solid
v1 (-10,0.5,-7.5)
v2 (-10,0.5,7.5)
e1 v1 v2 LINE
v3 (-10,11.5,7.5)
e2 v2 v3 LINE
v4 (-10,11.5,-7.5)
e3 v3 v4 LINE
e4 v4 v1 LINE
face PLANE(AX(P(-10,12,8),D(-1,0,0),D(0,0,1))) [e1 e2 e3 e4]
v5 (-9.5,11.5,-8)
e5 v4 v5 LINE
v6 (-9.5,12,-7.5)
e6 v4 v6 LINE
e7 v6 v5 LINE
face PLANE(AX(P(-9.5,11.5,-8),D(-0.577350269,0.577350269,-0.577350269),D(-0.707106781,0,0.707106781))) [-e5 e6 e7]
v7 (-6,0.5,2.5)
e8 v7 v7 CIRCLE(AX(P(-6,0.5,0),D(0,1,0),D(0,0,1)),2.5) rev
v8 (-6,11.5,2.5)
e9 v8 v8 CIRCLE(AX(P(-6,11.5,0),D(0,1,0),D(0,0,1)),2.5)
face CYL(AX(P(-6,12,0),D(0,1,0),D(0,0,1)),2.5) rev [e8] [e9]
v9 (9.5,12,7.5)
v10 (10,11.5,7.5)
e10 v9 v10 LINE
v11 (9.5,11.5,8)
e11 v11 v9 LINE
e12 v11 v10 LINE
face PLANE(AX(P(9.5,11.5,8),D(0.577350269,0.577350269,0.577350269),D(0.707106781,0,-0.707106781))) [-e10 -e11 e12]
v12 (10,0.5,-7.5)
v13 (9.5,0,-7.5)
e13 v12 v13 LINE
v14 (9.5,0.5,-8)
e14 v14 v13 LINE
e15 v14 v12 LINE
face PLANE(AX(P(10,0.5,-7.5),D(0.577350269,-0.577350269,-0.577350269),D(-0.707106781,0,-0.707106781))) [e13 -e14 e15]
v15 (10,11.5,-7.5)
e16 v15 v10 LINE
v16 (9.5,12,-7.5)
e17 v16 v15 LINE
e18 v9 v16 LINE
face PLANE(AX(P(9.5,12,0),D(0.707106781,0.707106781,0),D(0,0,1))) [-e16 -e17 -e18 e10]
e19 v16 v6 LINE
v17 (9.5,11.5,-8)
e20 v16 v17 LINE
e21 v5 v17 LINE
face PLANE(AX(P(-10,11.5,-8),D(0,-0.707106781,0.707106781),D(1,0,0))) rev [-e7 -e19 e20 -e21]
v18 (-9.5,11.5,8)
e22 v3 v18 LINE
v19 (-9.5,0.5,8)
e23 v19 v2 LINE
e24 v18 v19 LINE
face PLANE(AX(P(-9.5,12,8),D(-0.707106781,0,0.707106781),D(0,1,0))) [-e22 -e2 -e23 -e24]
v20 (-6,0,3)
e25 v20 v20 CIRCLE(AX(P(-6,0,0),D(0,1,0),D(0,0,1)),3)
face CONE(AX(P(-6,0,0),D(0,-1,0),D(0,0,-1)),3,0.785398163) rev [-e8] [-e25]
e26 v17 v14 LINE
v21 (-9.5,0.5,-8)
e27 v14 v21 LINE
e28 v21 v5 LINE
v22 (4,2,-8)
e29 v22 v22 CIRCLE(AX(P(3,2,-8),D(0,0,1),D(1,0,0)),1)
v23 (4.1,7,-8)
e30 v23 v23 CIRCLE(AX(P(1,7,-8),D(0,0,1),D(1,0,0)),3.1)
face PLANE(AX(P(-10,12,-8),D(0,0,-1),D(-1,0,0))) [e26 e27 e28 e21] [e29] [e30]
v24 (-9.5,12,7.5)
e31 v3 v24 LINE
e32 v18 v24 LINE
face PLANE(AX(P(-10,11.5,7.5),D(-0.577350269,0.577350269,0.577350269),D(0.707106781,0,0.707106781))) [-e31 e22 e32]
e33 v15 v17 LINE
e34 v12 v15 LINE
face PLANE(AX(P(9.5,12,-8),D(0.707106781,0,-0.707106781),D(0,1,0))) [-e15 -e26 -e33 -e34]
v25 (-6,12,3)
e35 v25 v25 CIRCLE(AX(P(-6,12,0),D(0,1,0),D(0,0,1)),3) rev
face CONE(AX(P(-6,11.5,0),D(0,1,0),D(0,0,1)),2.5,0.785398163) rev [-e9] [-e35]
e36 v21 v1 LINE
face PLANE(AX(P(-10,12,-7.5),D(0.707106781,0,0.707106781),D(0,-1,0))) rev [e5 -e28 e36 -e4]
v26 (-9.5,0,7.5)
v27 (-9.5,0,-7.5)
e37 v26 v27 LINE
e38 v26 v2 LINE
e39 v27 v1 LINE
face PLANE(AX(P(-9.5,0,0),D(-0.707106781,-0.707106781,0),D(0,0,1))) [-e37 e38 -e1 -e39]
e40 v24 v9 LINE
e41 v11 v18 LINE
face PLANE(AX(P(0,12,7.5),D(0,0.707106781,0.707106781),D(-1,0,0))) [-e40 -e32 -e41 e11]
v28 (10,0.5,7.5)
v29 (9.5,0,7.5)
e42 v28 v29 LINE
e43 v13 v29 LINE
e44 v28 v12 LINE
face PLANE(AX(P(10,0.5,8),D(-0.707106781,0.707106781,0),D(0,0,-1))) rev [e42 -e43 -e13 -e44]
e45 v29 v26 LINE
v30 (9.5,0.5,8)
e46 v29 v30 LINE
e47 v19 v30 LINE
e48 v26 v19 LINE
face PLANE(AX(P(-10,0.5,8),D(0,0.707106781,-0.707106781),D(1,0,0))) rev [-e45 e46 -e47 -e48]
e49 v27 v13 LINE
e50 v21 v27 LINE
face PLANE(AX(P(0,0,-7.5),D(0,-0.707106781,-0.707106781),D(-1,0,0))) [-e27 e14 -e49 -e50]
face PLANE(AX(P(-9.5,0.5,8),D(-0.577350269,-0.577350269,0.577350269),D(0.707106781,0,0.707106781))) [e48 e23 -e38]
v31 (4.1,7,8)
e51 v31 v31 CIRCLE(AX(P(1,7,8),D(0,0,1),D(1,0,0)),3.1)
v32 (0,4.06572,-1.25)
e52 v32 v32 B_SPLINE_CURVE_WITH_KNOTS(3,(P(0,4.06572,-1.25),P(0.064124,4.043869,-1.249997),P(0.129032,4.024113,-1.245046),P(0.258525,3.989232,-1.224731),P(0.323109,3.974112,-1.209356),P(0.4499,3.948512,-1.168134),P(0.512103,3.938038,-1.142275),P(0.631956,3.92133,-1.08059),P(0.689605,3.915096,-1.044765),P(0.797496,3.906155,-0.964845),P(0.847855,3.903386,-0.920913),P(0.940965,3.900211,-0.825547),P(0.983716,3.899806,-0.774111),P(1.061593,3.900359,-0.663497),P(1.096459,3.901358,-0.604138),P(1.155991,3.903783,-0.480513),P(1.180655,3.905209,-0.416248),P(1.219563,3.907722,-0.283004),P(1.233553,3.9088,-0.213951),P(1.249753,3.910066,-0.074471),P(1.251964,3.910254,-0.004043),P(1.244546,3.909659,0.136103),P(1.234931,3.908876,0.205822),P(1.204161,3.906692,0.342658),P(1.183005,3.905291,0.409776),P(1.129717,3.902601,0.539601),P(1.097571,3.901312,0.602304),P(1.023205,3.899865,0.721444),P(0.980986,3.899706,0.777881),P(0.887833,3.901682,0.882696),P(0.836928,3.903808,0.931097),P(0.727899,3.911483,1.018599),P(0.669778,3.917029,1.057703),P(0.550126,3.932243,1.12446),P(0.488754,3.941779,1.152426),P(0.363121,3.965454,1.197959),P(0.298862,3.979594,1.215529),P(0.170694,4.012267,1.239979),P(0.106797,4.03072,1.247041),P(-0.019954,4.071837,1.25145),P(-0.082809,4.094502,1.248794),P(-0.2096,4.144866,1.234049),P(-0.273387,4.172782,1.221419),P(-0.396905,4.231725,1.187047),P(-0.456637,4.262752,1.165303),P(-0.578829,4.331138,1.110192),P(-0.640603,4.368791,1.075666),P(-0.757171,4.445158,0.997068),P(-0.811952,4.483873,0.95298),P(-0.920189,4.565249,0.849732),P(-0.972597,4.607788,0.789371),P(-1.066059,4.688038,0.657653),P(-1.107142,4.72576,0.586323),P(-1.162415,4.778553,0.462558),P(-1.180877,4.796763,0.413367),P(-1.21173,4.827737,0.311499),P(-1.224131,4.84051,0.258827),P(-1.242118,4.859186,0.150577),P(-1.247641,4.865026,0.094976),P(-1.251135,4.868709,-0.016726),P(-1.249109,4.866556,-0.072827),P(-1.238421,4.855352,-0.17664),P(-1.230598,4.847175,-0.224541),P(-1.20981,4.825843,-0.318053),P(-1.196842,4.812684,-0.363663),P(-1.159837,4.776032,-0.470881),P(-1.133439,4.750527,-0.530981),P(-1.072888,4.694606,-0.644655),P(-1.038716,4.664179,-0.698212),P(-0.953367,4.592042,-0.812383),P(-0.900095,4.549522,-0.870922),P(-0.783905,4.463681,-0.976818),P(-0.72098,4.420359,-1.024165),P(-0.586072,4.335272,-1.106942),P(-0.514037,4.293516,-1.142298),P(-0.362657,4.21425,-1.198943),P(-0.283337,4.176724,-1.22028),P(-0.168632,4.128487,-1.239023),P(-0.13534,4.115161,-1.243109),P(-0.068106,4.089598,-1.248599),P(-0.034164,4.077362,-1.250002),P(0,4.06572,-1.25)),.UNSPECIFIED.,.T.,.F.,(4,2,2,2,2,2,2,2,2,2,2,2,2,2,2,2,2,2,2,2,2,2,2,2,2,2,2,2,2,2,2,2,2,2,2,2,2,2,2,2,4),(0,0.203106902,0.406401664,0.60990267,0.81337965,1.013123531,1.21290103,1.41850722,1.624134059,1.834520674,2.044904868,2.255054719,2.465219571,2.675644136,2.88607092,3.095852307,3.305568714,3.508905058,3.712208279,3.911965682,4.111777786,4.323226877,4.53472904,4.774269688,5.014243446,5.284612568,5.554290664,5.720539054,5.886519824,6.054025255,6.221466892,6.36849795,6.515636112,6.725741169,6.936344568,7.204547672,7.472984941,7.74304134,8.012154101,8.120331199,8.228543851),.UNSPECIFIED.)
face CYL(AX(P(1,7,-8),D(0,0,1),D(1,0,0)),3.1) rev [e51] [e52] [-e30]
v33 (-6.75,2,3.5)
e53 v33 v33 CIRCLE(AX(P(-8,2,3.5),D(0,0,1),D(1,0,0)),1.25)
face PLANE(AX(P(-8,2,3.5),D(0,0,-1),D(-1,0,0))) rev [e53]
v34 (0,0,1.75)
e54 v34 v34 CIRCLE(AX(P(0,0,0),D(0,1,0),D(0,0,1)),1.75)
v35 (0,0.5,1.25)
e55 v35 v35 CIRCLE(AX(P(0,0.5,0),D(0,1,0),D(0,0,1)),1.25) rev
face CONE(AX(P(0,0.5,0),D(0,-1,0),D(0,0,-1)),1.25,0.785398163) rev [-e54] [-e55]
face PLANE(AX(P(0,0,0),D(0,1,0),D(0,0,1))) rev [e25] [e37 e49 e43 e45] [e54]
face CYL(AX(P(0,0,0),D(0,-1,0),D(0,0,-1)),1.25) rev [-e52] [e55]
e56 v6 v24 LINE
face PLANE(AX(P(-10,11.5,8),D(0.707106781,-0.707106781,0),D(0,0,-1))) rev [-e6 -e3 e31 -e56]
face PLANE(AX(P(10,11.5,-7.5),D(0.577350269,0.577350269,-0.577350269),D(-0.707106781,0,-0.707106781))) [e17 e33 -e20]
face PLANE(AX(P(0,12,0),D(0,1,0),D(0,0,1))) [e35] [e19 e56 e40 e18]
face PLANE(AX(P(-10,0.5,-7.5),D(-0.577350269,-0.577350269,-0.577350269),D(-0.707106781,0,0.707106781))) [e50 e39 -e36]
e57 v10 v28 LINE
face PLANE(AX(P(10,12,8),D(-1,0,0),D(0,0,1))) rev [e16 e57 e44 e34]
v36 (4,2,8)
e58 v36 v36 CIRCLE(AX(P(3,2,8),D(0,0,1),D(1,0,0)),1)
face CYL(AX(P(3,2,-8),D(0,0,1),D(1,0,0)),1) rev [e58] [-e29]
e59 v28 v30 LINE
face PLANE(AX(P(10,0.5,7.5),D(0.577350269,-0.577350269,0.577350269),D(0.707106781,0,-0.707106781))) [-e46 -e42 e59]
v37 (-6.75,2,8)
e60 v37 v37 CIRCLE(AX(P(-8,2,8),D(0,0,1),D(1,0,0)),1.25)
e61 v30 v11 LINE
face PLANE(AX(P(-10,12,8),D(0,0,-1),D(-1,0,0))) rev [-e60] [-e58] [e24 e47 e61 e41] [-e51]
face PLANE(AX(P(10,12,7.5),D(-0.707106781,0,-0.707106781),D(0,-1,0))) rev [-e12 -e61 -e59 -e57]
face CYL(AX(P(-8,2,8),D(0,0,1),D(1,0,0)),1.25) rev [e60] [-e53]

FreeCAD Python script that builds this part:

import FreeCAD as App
import Part
import Sketcher
from FreeCAD import Vector


def edges_at(feature, points):
    """Names of the edges that pass closest to the given points."""
    edges = feature.Shape.Edges
    near = lambda p: min(range(len(edges)), key=lambda i: edges[i].distToShape(Part.Vertex(*p))[0])
    return sorted({f"Edge{near(p) + 1}" for p in points})


def add_polygon(sketch, points):
    """Adds a closed chain of lines whose ends are joined by coincident constraints."""
    first, n = sketch.GeometryCount, len(points)
    for a, b in zip(points, points[1:] + points[:1]):
        sketch.addGeometry(Part.LineSegment(App.Vector(*a, 0), App.Vector(*b, 0)), False)
    for i in range(n):
        sketch.addConstraint(Sketcher.Constraint("Coincident", first + i, 2, first + (i + 1) % n, 1))

doc = App.newDocument("Part")
body = doc.addObject("PartDesign::Body", "Body")

sketch1 = doc.addObject("Sketcher::SketchObject", "Sketch")
body.addObject(sketch1)
sketch1.AttachmentSupport = (doc.XZ_Plane, [""])
sketch1.MapMode = "FlatFace"
add_polygon(sketch1, [(-10, -8), (-10, 8), (10, 8), (10, -8)])
sketch1.addConstraint(Sketcher.Constraint("Vertical", 0))
sketch1.addConstraint(Sketcher.Constraint("Horizontal", 1))
sketch1.addConstraint(Sketcher.Constraint("Vertical", 2))
sketch1.addConstraint(Sketcher.Constraint("Horizontal", 3))
sketch1.addConstraint(Sketcher.Constraint("Symmetric", 0, 2, 2, 2, -1, 1))
sketch1.addConstraint(Sketcher.Constraint("DistanceX", 1, 1, 1, 2, 20.0))
sketch1.addConstraint(Sketcher.Constraint("DistanceY", 0, 1, 0, 2, 16.0))
pad1 = doc.addObject("PartDesign::Pad", "Pad")
body.addObject(pad1)
pad1.Profile = sketch1
pad1.Length = 12
pad1.Reversed = True

sketch2 = doc.addObject("Sketcher::SketchObject", "Sketch001")
body.addObject(sketch2)
sketch2.AttachmentSupport = (doc.XY_Plane, [""])
sketch2.MapMode = "FlatFace"
sketch2.AttachmentOffset = App.Placement(Vector(0, 0, 8), App.Rotation())
sketch2.addGeometry(Part.Circle(Vector(1, 7, 0), Vector(0, 0, 1), 3.1), False)
sketch2.addGeometry(Part.Circle(Vector(3, 2, 0), Vector(0, 0, 1), 1), False)
sketch2.addConstraint(Sketcher.Constraint("Diameter", 1, 2.0))
sketch2.addConstraint(Sketcher.Constraint("Diameter", 0, 6.2))
sketch2.addConstraint(Sketcher.Constraint("DistanceX", -1, 1, 0, 3, 1.0))
sketch2.addConstraint(Sketcher.Constraint("DistanceY", -1, 1, 0, 3, 7.0))
sketch2.addConstraint(Sketcher.Constraint("DistanceX", -1, 1, 1, 3, 3.0))
sketch2.addConstraint(Sketcher.Constraint("DistanceY", -1, 1, 1, 3, 2.0))
pocket1 = doc.addObject("PartDesign::Pocket", "Pocket")
body.addObject(pocket1)
pocket1.Profile = sketch2
pocket1.Type = "ThroughAll"

sketch3 = doc.addObject("Sketcher::SketchObject", "Sketch002")
body.addObject(sketch3)
sketch3.AttachmentSupport = (doc.XY_Plane, [""])
sketch3.MapMode = "FlatFace"
sketch3.AttachmentOffset = App.Placement(Vector(0, 0, 8), App.Rotation())
sketch3.addGeometry(Part.Circle(Vector(-8, 2, 0), Vector(0, 0, 1), 1.2), False)
sketch3.addConstraint(Sketcher.Constraint("Diameter", 0, 2.5))
sketch3.addConstraint(Sketcher.Constraint("DistanceX", 0, 3, -1, 1, 8.0))
sketch3.addConstraint(Sketcher.Constraint("DistanceY", -1, 1, 0, 3, 2.0))
doc.recompute()
hole = doc.addObject("PartDesign::Hole", "Hole")
body.addObject(hole)
hole.Profile = sketch3
hole.ThreadType = "None"
hole.Diameter = 2.5
hole.DepthType = "Dimension"
hole.Depth = 4.5
hole.DrillPoint = "Flat"

sketch4 = doc.addObject("Sketcher::SketchObject", "Sketch003")
body.addObject(sketch4)
sketch4.AttachmentSupport = (doc.XZ_Plane, [""])
sketch4.MapMode = "FlatFace"
sketch4.AttachmentOffset = App.Placement(Vector(0, 0, -12), App.Rotation())
sketch4.addGeometry(Part.Circle(Vector(-6, 0, 0), Vector(0, 0, 1), 2.5), False)
sketch4.addConstraint(Sketcher.Constraint("PointOnObject", 0, 3, -1))
sketch4.addConstraint(Sketcher.Constraint("Diameter", 0, 5.0))
sketch4.addConstraint(Sketcher.Constraint("DistanceX", 0, 3, -1, 1, 6.0))
doc.recompute()
hole2 = doc.addObject("PartDesign::Hole", "Hole001")
body.addObject(hole2)
hole2.Profile = sketch4
hole2.ThreadType = "None"
hole2.Diameter = 5
hole2.DepthType = "ThroughAll"
hole2.Reversed = True

sketch5 = doc.addObject("Sketcher::SketchObject", "Sketch004")
body.addObject(sketch5)
sketch5.AttachmentSupport = (doc.XZ_Plane, [""])
sketch5.MapMode = "FlatFace"
sketch5.addGeometry(Part.Circle(Vector(0, 0, 0), Vector(0, 0, 1), 1.2), False)
sketch5.addConstraint(Sketcher.Constraint("Coincident", 0, 3, -1, 1))
sketch5.addConstraint(Sketcher.Constraint("Diameter", 0, 2.5))
doc.recompute()
hole3 = doc.addObject("PartDesign::Hole", "Hole002")
body.addObject(hole3)
hole3.Profile = sketch5
hole3.ThreadType = "None"
hole3.Diameter = 2.5
hole3.DepthType = "Dimension"
hole3.Depth = 6.999
hole3.DrillPoint = "Angled"
hole3.DrillPointAngle = 118
doc.recompute()

chamfer = doc.addObject("PartDesign::Chamfer", "Chamfer")
body.addObject(chamfer)
chamfer.Base = (hole3, edges_at(hole3, [
    (0, 12, -8),
    (-10, 12, 0),
    (-3.5, 12, 0),
    (-3.5, 0, 0),
    (-1.25, 0, 0),
    (0, 12, 8),
    (-10, 0, 0),
    (0, 0, -8),
    (10, 0, 0),
    (0, 0, 8),
    (10, 12, 0),
    (-10, 6, 8),
    (-10, 6, -8),
    (10, 6, -8),
    (10, 6, 8),
]))
chamfer.Size = 0.5

doc.recompute()
